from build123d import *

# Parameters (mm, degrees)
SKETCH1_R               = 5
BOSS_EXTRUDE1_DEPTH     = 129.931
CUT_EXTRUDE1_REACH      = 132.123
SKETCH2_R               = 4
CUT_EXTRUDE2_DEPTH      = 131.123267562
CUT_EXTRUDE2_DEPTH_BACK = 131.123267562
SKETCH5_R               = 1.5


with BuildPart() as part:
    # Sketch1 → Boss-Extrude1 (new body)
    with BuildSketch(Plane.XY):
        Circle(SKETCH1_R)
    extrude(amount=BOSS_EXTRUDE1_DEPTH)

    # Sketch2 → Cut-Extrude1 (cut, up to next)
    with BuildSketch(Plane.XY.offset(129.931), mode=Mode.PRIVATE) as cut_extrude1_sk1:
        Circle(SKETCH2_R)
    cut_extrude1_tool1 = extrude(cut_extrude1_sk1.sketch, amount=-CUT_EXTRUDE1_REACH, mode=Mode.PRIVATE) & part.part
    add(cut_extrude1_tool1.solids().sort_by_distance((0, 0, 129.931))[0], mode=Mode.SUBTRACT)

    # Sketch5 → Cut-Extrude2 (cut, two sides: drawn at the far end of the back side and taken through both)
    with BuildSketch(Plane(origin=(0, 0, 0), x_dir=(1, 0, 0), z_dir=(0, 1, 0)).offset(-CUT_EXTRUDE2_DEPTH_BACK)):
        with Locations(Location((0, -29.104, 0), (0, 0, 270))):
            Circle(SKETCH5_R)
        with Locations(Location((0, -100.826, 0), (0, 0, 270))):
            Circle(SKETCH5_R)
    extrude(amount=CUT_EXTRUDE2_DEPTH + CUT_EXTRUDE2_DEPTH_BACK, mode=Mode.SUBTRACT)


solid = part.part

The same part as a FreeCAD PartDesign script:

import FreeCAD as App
import Part
import Sketcher

V = App.Vector
Q = App.Units.Quantity

doc = App.newDocument("Part")
body = doc.addObject("PartDesign::Body", "Body")

sketch1 = body.newObject("Sketcher::SketchObject", "Sketch")
sketch1.AttachmentSupport = (doc.getObject("XY_Plane"), [""])
sketch1.MapMode = "FlatFace"
sketch1.addGeometry(Part.Circle(V(0, 0, 0), V(0, 0, 1), 5), False)
sketch1.addConstraint(Sketcher.Constraint("Coincident", 0, 3, -1, 1))
sketch1.addConstraint(Sketcher.Constraint("Diameter", 0, Q("10 mm")))
pad1 = body.newObject("PartDesign::Pad", "Pad")
pad1.Profile = sketch1
pad1.Length = 129.931

sketch2 = body.newObject("Sketcher::SketchObject", "Sketch001")
sketch2.AttachmentSupport = (doc.getObject("XY_Plane"), [""])
sketch2.MapMode = "FlatFace"
sketch2.AttachmentOffset = App.Placement(V(0, 0, 129.931), App.Rotation())
sketch2.addGeometry(Part.Circle(V(0, 0, 0), V(0, 0, 1), 4), False)
sketch2.addConstraint(Sketcher.Constraint("Coincident", 0, 3, -1, 1))
sketch2.addConstraint(Sketcher.Constraint("Diameter", 0, Q("8 mm")))
pocket1 = body.newObject("PartDesign::Pocket", "Pocket")
pocket1.Profile = sketch2
pocket1.Type = "UpToFirst"

sketch3 = body.newObject("Sketcher::SketchObject", "Sketch002")
sketch3.AttachmentSupport = (doc.getObject("XZ_Plane"), [""])
sketch3.MapMode = "FlatFace"
sketch3.addGeometry(Part.Circle(V(0, 29.1, 0), V(0, 0, 1), 1.5), False)
sketch3.addGeometry(Part.Circle(V(0, 100.8, 0), V(0, 0, 1), 1.5), False)
sketch3.addConstraint(Sketcher.Constraint("Equal", 0, 1))
sketch3.addConstraint(Sketcher.Constraint("PointOnObject", 0, 3, -2))
sketch3.addConstraint(Sketcher.Constraint("PointOnObject", 1, 3, -2))
sketch3.addConstraint(Sketcher.Constraint("Diameter", 0, Q("3 mm")))
sketch3.addConstraint(Sketcher.Constraint("DistanceY", -1, 1, 0, 3, Q("29.104 mm")))
sketch3.addConstraint(Sketcher.Constraint("DistanceY", -1, 1, 1, 3, Q("100.826 mm")))
pocket2 = body.newObject("PartDesign::Pocket", "Pocket001")
pocket2.Profile = sketch3
pocket2.Type = "ThroughAll"
pocket2.Midplane = True

doc.recompute()
